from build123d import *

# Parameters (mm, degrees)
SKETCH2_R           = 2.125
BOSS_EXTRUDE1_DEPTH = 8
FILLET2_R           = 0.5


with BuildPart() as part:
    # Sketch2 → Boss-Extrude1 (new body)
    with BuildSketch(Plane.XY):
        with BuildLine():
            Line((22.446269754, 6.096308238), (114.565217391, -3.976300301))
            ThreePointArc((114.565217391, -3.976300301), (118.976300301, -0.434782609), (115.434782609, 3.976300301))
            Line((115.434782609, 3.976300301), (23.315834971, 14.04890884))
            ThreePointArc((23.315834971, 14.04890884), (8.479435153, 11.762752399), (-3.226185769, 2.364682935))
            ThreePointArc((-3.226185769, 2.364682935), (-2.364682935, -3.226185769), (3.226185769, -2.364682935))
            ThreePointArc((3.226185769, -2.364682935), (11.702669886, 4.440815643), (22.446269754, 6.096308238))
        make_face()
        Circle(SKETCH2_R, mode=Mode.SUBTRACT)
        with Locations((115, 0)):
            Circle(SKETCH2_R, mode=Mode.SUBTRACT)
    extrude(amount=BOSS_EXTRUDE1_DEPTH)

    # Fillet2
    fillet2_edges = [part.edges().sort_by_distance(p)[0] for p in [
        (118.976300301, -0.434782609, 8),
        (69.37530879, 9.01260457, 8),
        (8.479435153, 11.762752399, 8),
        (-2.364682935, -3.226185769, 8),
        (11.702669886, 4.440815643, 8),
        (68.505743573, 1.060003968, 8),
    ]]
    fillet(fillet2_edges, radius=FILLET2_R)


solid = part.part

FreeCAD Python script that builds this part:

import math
import FreeCAD as App
import Part
import Sketcher
from FreeCAD import Vector


def edges_at(feature, points):
    """Names of the edges that pass closest to the given points."""
    edges = feature.Shape.Edges
    near = lambda p: min(range(len(edges)), key=lambda i: edges[i].distToShape(Part.Vertex(*p))[0])
    return sorted({f"Edge{near(p) + 1}" for p in points})

doc = App.newDocument("Part")
params = doc.addObject("Spreadsheet::Sheet", "Params")
for row, (alias, value) in enumerate([
    ("sketch1_radius", "4 mm"),
    ("sketch1_radius2", "29 mm"),
    ("sketch1_diameter", "4.25 mm"),
    ("pad1_length", "8 mm"),
    ("fillet_radius", "0.5 mm"),
], start=1):
    params.set(f"A{row}", alias)
    params.set(f"B{row}", "=" + value)
    params.setAlias(f"B{row}", alias)

body = doc.addObject("PartDesign::Body", "Body")

# Sketch on XY plane
sketch1 = body.newObject("Sketcher::SketchObject", "Sketch")
sketch1.AttachmentSupport = (doc.getObject("XY_Plane"), [""])
sketch1.MapMode = "FlatFace"
sketch1.addGeometry([
    Part.LineSegment(Vector(22.44627, 6.096308, 0), Vector(114.565217, -3.9763, 0)),  # 0
    Part.ArcOfCircle(Part.Circle(Vector(115, 0, 0), Vector(0, 0, 1), 4), math.radians(-96.240131), math.radians(83.759869)),  # 1
    Part.LineSegment(Vector(115.434783, 3.9763, 0), Vector(23.315835, 14.048909, 0)),  # 2
    Part.ArcOfCircle(Part.Circle(Vector(20.163661, -14.779268, 0), Vector(0, 0, 1), 29), math.radians(83.759869), math.radians(143.759869)),  # 3
    Part.ArcOfCircle(Part.Circle(Vector(0, 0, 0), Vector(0, 0, 1), 4), math.radians(143.759869), math.radians(323.759869)),  # 4
    Part.ArcOfCircle(Part.Circle(Vector(20.163661, -14.779268, 0), Vector(0, 0, 1), 21), math.radians(83.759869), math.radians(143.759869)),  # 5
    Part.Circle(Vector(0, 0, 0), Vector(0, 0, 1), 2.125),  # 6
    Part.Circle(Vector(115, 0, 0), Vector(0, 0, 1), 2.125),  # 7
], False)
sketch1.addConstraint([
    Sketcher.Constraint("Tangent", 0, 2, 1, 1),
    Sketcher.Constraint("Tangent", 1, 2, 2, 1),
    Sketcher.Constraint("Tangent", 2, 2, 3, 1),
    Sketcher.Constraint("Tangent", 3, 2, 4, 1),
    Sketcher.Constraint("Tangent", 4, 2, 5, 2),
    Sketcher.Constraint("Tangent", 5, 1, 0, 1),
    Sketcher.Constraint("Coincident", 4, 3, -1, 1),
    Sketcher.Constraint("Coincident", 6, 3, -1, 1),
    Sketcher.Constraint("Coincident", 5, 3, 3, 3),
    Sketcher.Constraint("Coincident", 7, 3, 1, 3),
    Sketcher.Constraint("Equal", 1, 4),
    Sketcher.Constraint("Equal", 6, 7),
    Sketcher.Constraint("PointOnObject", 1, 3, -1),
    Sketcher.Constraint("Radius", 1, 4.0),
    Sketcher.Constraint("Radius", 3, 29.0),
    Sketcher.Constraint("Diameter", 6, 4.25),
    Sketcher.Constraint("DistanceX", -1, 1, 1, 3, 115.0),
    Sketcher.Constraint("Distance", 0, 92.667999),
])
sketch1.setExpression("Constraints[13]", "Params.sketch1_radius")
sketch1.setExpression("Constraints[14]", "Params.sketch1_radius2")
sketch1.setExpression("Constraints[15]", "Params.sketch1_diameter")
pad1 = body.newObject("PartDesign::Pad", "Pad")
pad1.Profile = sketch1
pad1.setExpression("Length", "Params.pad1_length")
doc.recompute()

fillet = body.newObject("PartDesign::Fillet", "Fillet")
fillet.Base = (pad1, edges_at(pad1, [
    (118.976, -0.435, 8),
    (69.375, 9.013, 8),
    (8.479, 11.763, 8),
    (-2.365, -3.226, 8),
    (11.703, 4.441, 8),
    (68.506, 1.06, 8),
]))
fillet.setExpression("Radius", "Params.fillet_radius")

doc.recompute()
